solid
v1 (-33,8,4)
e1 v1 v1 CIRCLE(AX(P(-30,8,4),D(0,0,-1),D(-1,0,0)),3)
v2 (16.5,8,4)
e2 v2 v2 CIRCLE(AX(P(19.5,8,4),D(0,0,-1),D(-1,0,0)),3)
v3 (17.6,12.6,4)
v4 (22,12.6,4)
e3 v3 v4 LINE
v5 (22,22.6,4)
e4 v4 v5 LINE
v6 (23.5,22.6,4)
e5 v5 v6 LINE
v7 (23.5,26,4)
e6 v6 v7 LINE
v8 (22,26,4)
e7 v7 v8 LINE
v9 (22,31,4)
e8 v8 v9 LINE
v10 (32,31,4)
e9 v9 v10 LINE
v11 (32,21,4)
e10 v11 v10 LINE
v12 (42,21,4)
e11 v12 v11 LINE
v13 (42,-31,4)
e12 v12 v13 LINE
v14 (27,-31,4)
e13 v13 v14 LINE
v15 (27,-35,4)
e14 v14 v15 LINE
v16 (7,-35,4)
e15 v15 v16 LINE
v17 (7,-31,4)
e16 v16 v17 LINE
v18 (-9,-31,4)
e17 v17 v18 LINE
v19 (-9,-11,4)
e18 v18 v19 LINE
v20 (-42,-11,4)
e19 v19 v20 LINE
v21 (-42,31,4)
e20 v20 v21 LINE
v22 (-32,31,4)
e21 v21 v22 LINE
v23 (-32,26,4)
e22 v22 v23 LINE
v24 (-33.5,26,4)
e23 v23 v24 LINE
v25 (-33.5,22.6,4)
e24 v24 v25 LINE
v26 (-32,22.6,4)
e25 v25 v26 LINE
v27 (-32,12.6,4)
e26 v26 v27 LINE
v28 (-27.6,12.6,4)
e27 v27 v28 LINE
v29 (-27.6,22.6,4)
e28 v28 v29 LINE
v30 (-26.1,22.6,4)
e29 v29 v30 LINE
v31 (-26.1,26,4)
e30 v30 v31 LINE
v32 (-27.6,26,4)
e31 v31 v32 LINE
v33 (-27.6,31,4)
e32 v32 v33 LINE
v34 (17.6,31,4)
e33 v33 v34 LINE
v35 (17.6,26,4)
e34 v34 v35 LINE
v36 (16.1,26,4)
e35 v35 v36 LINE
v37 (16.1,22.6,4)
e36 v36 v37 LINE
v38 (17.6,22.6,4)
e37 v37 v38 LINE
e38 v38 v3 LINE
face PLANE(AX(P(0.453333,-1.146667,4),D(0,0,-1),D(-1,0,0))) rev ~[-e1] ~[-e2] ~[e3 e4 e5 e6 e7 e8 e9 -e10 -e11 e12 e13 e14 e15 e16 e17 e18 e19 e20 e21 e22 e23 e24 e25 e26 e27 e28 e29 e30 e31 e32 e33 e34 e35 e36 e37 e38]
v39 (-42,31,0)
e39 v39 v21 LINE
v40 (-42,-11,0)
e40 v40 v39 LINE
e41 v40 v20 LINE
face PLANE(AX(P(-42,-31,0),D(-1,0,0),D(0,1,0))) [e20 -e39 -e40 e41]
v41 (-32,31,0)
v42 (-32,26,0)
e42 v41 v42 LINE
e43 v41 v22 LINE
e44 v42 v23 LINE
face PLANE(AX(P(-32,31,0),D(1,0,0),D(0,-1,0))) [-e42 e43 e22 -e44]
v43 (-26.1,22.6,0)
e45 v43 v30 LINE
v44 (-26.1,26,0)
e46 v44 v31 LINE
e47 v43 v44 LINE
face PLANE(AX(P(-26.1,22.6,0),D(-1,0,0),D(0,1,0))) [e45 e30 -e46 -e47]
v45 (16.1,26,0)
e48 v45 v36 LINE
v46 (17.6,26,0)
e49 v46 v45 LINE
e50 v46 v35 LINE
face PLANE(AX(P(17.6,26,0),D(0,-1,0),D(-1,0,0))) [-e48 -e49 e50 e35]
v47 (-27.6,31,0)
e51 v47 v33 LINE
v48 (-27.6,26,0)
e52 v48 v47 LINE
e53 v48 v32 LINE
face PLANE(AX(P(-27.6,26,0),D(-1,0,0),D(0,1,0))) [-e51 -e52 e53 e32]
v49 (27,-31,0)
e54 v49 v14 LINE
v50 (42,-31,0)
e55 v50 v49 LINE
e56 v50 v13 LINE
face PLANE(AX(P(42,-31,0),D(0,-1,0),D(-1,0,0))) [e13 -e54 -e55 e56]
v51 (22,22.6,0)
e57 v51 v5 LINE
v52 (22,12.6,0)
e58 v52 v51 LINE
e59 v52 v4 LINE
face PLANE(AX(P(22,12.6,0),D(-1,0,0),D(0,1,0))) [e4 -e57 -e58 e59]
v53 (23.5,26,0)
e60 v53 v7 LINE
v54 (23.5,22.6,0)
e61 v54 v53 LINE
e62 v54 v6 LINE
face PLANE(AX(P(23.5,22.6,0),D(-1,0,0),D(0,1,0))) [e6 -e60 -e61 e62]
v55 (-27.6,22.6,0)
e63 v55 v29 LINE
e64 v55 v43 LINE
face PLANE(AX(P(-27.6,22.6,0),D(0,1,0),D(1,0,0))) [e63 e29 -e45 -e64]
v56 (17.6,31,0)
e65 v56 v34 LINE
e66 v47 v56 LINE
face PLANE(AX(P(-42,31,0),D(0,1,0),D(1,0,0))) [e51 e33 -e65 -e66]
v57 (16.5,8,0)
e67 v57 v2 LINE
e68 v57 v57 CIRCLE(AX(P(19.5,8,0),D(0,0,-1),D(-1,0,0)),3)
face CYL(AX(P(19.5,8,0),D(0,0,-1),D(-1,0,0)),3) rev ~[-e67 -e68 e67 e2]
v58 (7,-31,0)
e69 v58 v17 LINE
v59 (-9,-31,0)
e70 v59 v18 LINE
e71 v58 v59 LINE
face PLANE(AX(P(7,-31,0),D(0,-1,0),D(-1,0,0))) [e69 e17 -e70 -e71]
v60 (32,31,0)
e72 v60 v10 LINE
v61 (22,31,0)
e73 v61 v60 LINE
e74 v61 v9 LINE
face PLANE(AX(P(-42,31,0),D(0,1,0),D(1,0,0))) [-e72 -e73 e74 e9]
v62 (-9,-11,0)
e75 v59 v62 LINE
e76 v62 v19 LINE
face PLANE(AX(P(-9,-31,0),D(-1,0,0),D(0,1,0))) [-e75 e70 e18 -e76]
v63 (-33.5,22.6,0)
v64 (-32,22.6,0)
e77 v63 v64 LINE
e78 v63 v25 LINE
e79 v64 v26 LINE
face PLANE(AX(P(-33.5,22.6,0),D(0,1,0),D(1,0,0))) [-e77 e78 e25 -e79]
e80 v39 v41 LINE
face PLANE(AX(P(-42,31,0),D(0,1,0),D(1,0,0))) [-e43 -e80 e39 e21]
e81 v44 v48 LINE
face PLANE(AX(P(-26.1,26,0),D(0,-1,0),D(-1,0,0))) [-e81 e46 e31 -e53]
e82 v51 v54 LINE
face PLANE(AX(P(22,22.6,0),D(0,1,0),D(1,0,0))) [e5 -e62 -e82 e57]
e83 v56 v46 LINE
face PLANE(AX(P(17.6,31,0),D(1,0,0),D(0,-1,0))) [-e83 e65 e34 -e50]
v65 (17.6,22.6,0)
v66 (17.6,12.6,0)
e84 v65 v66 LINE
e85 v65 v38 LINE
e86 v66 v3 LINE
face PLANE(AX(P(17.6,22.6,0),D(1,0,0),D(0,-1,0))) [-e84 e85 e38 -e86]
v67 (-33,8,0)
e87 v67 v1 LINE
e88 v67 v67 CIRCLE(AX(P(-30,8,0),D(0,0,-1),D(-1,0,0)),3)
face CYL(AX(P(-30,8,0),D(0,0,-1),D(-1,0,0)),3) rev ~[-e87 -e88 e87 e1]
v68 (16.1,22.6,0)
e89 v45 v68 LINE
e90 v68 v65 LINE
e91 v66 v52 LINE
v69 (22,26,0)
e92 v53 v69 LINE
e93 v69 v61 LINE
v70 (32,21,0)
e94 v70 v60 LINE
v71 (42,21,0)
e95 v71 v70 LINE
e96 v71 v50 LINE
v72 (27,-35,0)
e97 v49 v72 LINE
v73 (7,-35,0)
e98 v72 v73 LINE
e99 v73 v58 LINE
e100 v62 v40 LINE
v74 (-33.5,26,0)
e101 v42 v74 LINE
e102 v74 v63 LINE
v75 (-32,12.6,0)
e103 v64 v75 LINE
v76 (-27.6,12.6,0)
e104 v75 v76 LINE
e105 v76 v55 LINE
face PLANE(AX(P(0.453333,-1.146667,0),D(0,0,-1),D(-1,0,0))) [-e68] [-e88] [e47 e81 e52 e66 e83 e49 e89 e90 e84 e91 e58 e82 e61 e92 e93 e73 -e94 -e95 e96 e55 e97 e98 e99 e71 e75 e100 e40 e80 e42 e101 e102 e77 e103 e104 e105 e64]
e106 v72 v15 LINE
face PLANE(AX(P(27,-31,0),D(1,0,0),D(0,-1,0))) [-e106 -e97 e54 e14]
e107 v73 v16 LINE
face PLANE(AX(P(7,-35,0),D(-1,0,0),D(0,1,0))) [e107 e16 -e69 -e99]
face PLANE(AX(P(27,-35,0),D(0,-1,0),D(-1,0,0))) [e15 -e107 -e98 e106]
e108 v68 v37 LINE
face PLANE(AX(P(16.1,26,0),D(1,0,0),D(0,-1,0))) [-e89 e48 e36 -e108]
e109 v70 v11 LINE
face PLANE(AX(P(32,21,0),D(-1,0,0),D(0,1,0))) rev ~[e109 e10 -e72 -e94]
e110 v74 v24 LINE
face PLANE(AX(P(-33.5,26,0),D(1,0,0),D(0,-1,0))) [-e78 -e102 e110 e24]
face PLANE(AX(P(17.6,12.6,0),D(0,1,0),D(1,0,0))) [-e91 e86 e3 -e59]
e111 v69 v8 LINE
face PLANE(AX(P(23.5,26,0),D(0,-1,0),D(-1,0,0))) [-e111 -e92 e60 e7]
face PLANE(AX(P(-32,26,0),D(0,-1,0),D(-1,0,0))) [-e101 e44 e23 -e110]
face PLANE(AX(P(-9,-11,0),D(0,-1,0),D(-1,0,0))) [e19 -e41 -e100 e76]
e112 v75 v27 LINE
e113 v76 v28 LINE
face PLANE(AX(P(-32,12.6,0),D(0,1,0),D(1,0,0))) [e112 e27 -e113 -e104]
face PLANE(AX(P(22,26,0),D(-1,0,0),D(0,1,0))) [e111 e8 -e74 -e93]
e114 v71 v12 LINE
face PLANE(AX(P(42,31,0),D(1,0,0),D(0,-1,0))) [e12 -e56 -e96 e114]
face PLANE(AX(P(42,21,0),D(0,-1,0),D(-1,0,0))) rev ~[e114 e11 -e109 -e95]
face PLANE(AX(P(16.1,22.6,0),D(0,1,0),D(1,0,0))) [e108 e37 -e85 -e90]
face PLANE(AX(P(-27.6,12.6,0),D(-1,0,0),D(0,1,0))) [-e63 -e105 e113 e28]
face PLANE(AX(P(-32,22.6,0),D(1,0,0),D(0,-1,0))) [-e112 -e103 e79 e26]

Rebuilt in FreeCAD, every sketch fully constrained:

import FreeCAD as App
import Part
import Sketcher
from FreeCAD import Vector
Q = App.Units.Quantity


def add_polygon(sketch, points):
    """Adds a closed chain of lines whose ends are joined by coincident constraints."""
    first, n = sketch.GeometryCount, len(points)
    for a, b in zip(points, points[1:] + points[:1]):
        sketch.addGeometry(Part.LineSegment(App.Vector(*a, 0), App.Vector(*b, 0)), False)
    for i in range(n):
        sketch.addConstraint(Sketcher.Constraint("Coincident", first + i, 2, first + (i + 1) % n, 1))

doc = App.newDocument("Part")
params = doc.addObject("Spreadsheet::Sheet", "Params")
for row, (alias, value) in enumerate([
    ("sketch1_width", "15 mm"),
    ("sketch1_width2", "84 mm"),
    ("sketch1_width3", "49 mm"),
    ("sketch1_height", "4 mm"),
    ("sketch1_height2", "62 mm"),
    ("pad1_length", "4 mm"),
    ("sketch2_width", "33 mm"),
    ("sketch2_width2", "10 mm"),
    ("sketch2_height", "20 mm"),
    ("pocket1_length", "5 mm"),
    ("sketch3_height", "10 mm"),
    ("sketch3_height2", "5 mm"),
    ("sketch3_width", "1.5 mm"),
    ("sketch3_width2", "4.4 mm"),
    ("sketch3_height3", "3.4 mm"),
    ("pocket2_length", "10 mm"),
    ("sketch4_diameter", "6 mm"),
    ("pocket3_length", "10 mm"),
], start=1):
    params.set(f"A{row}", alias)
    params.set(f"B{row}", "=" + value)
    params.setAlias(f"B{row}", alias)

body = doc.addObject("PartDesign::Body", "Body")

# Sketch on XY plane
sketch1 = body.newObject("Sketcher::SketchObject", "Sketch")
sketch1.AttachmentSupport = (doc.getObject("XY_Plane"), [""])
sketch1.MapMode = "FlatFace"
add_polygon(sketch1, [(27, -35), (27, -31), (42, -31), (42, 31), (-42, 31), (-42, -31), (7, -31), (7, -35)])  # lines 0-7
sketch1.addConstraint(Sketcher.Constraint("Vertical", 0))
sketch1.addConstraint(Sketcher.Constraint("Horizontal", 1))
sketch1.addConstraint(Sketcher.Constraint("Vertical", 2))
sketch1.addConstraint(Sketcher.Constraint("Horizontal", 3))
sketch1.addConstraint(Sketcher.Constraint("Vertical", 4))
sketch1.addConstraint(Sketcher.Constraint("Horizontal", 5))
sketch1.addConstraint(Sketcher.Constraint("Vertical", 6))
sketch1.addConstraint(Sketcher.Constraint("Horizontal", 7))
sketch1.addConstraint(Sketcher.Constraint("Symmetric", 1, 2, 3, 2, -1, 1))
sketch1.addConstraint(Sketcher.Constraint("Horizontal", 1, 2, 4, 2))
sketch1.addConstraint(Sketcher.Constraint("DistanceX", 1, 1, 1, 2, Q("15 mm")))
sketch1.addConstraint(Sketcher.Constraint("DistanceX", 3, 2, 3, 1, Q("84 mm")))
sketch1.addConstraint(Sketcher.Constraint("DistanceX", 5, 1, 5, 2, Q("49 mm")))
sketch1.addConstraint(Sketcher.Constraint("DistanceY", 0, 1, 0, 2, Q("4 mm")))
sketch1.addConstraint(Sketcher.Constraint("DistanceY", 2, 1, 2, 2, Q("62 mm")))
sketch1.setExpression("Constraints[18]", "Params.sketch1_width")
sketch1.setExpression("Constraints[19]", "Params.sketch1_width2")
sketch1.setExpression("Constraints[20]", "Params.sketch1_width3")
sketch1.setExpression("Constraints[21]", "Params.sketch1_height")
sketch1.setExpression("Constraints[22]", "Params.sketch1_height2")
pad1 = body.newObject("PartDesign::Pad", "Pad")
pad1.Profile = sketch1
pad1.setExpression("Length", "Params.pad1_length")

# Sketch on XY plane
sketch2 = body.newObject("Sketcher::SketchObject", "Sketch001")
sketch2.AttachmentSupport = (doc.getObject("XY_Plane"), [""])
sketch2.MapMode = "FlatFace"
add_polygon(sketch2, [(-9, -11), (-9, -31), (-42, -31), (-42, -11)])  # lines 0-3
add_polygon(sketch2, [(42, 31), (42, 21), (32, 21), (32, 31)])  # lines 4-7
sketch2.addConstraint(Sketcher.Constraint("Vertical", 0))
sketch2.addConstraint(Sketcher.Constraint("Horizontal", 1))
sketch2.addConstraint(Sketcher.Constraint("Vertical", 2))
sketch2.addConstraint(Sketcher.Constraint("Horizontal", 3))
sketch2.addConstraint(Sketcher.Constraint("Vertical", 4))
sketch2.addConstraint(Sketcher.Constraint("Horizontal", 5))
sketch2.addConstraint(Sketcher.Constraint("Vertical", 6))
sketch2.addConstraint(Sketcher.Constraint("Horizontal", 7))
sketch2.addConstraint(Sketcher.Constraint("Symmetric", 1, 2, 7, 2, -1, 1))
sketch2.addConstraint(Sketcher.Constraint("Equal", 7, 4))
sketch2.addConstraint(Sketcher.Constraint("DistanceX", 1, 2, 1, 1, Q("33 mm")))
sketch2.addConstraint(Sketcher.Constraint("DistanceX", 5, 2, 5, 1, Q("10 mm")))
sketch2.addConstraint(Sketcher.Constraint("DistanceY", 0, 2, 0, 1, Q("20 mm")))
sketch2.addConstraint(Sketcher.Constraint("DistanceX", 0, 2, -1, 1, Q("9 mm")))
sketch2.addConstraint(Sketcher.Constraint("DistanceY", 0, 2, -1, 1, Q("31 mm")))
sketch2.setExpression("Constraints[18]", "Params.sketch2_width")
sketch2.setExpression("Constraints[19]", "Params.sketch2_width2")
sketch2.setExpression("Constraints[20]", "Params.sketch2_height")
pocket1 = body.newObject("PartDesign::Pocket", "Pocket")
pocket1.Profile = sketch2
pocket1.setExpression("Length", "Params.pocket1_length")
pocket1.Reversed = True

# Sketch on XY plane
sketch3 = body.newObject("Sketcher::SketchObject", "Sketch002")
sketch3.AttachmentSupport = (doc.getObject("XY_Plane"), [""])
sketch3.MapMode = "FlatFace"
add_polygon(sketch3, [(-32, 12.6), (-32, 22.6), (-33.5, 22.6), (-33.5, 26), (-32, 26), (-32, 31), (-27.6, 31), (-27.6, 26), (-26.1, 26), (-26.1, 22.6), (-27.6, 22.6), (-27.6, 12.6)])  # lines 0-11
add_polygon(sketch3, [(17.6, 12.6), (17.6, 22.6), (16.1, 22.6), (16.1, 26), (17.6, 26), (17.6, 31), (22, 31), (22, 26), (23.5, 26), (23.5, 22.6), (22, 22.6), (22, 12.6)])  # lines 12-23
sketch3.addConstraint(Sketcher.Constraint("Vertical", 0))
sketch3.addConstraint(Sketcher.Constraint("Horizontal", 1))
sketch3.addConstraint(Sketcher.Constraint("Vertical", 2))
sketch3.addConstraint(Sketcher.Constraint("Horizontal", 3))
sketch3.addConstraint(Sketcher.Constraint("Vertical", 4))
sketch3.addConstraint(Sketcher.Constraint("Horizontal", 5))
sketch3.addConstraint(Sketcher.Constraint("Vertical", 6))
sketch3.addConstraint(Sketcher.Constraint("Horizontal", 7))
sketch3.addConstraint(Sketcher.Constraint("Vertical", 8))
sketch3.addConstraint(Sketcher.Constraint("Horizontal", 9))
sketch3.addConstraint(Sketcher.Constraint("Vertical", 10))
sketch3.addConstraint(Sketcher.Constraint("Horizontal", 11))
sketch3.addConstraint(Sketcher.Constraint("Vertical", 12))
sketch3.addConstraint(Sketcher.Constraint("Horizontal", 13))
sketch3.addConstraint(Sketcher.Constraint("Vertical", 14))
sketch3.addConstraint(Sketcher.Constraint("Horizontal", 15))
sketch3.addConstraint(Sketcher.Constraint("Vertical", 16))
sketch3.addConstraint(Sketcher.Constraint("Horizontal", 17))
sketch3.addConstraint(Sketcher.Constraint("Vertical", 18))
sketch3.addConstraint(Sketcher.Constraint("Horizontal", 19))
sketch3.addConstraint(Sketcher.Constraint("Vertical", 20))
sketch3.addConstraint(Sketcher.Constraint("Horizontal", 21))
sketch3.addConstraint(Sketcher.Constraint("Vertical", 22))
sketch3.addConstraint(Sketcher.Constraint("Horizontal", 23))
sketch3.addConstraint(Sketcher.Constraint("Horizontal", 3, 2, 6, 2))
sketch3.addConstraint(Sketcher.Constraint("Horizontal", 1, 2, 8, 2))
sketch3.addConstraint(Sketcher.Constraint("Horizontal", 9, 2, 12, 2))
sketch3.addConstraint(Sketcher.Constraint("Horizontal", 7, 2, 14, 2))
sketch3.addConstraint(Sketcher.Constraint("Horizontal", 5, 2, 16, 2))
sketch3.addConstraint(Sketcher.Constraint("Horizontal", 15, 2, 18, 2))
sketch3.addConstraint(Sketcher.Constraint("Horizontal", 13, 2, 20, 2))
sketch3.addConstraint(Sketcher.Constraint("Horizontal", 11, 2, 22, 2))
sketch3.addConstraint(Sketcher.Constraint("Vertical", 0, 2, 3, 2))
sketch3.addConstraint(Sketcher.Constraint("Vertical", 6, 2, 9, 2))
sketch3.addConstraint(Sketcher.Constraint("Vertical", 12, 2, 15, 2))
sketch3.addConstraint(Sketcher.Constraint("Vertical", 18, 2, 21, 2))
sketch3.addConstraint(Sketcher.Constraint("Equal", 3, 7))
sketch3.addConstraint(Sketcher.Constraint("Equal", 9, 13))
sketch3.addConstraint(Sketcher.Constraint("Equal", 11, 17))
sketch3.addConstraint(Sketcher.Constraint("Equal", 15, 19))
sketch3.addConstraint(Sketcher.Constraint("DistanceY", 0, 1, 0, 2, Q("10 mm")))
sketch3.addConstraint(Sketcher.Constraint("DistanceY", 4, 1, 4, 2, Q("5 mm")))
sketch3.addConstraint(Sketcher.Constraint("DistanceX", 1, 2, 1, 1, Q("1.5 mm")))
sketch3.addConstraint(Sketcher.Constraint("DistanceX", 5, 1, 5, 2, Q("4.4 mm")))
sketch3.addConstraint(Sketcher.Constraint("DistanceY", 2, 1, 2, 2, Q("3.4 mm")))
sketch3.addConstraint(Sketcher.Constraint("DistanceX", 0, 2, -1, 1, Q("32 mm")))
sketch3.addConstraint(Sketcher.Constraint("DistanceY", -1, 1, 2, 2, Q("26 mm")))
sketch3.addConstraint(Sketcher.Constraint("DistanceX", -1, 1, 17, 2, Q("22 mm")))
sketch3.setExpression("Constraints[64]", "Params.sketch3_height")
sketch3.setExpression("Constraints[65]", "Params.sketch3_height2")
sketch3.setExpression("Constraints[66]", "Params.sketch3_width")
sketch3.setExpression("Constraints[67]", "Params.sketch3_width2")
sketch3.setExpression("Constraints[68]", "Params.sketch3_height3")
pocket2 = body.newObject("PartDesign::Pocket", "Pocket001")
pocket2.Profile = sketch3
pocket2.setExpression("Length", "Params.pocket2_length")
pocket2.Reversed = True

# Sketch on XY plane
sketch4 = body.newObject("Sketcher::SketchObject", "Sketch003")
sketch4.AttachmentSupport = (doc.getObject("XY_Plane"), [""])
sketch4.MapMode = "FlatFace"
sketch4.addGeometry(Part.Circle(Vector(-30, 8, 0), Vector(0, 0, 1), 3), False)
sketch4.addGeometry(Part.Circle(Vector(19.5, 8, 0), Vector(0, 0, 1), 3), False)
sketch4.addConstraint(Sketcher.Constraint("Equal", 0, 1))
sketch4.addConstraint(Sketcher.Constraint("Horizontal", 0, 3, 1, 3))
sketch4.addConstraint(Sketcher.Constraint("Diameter", 0, Q("6 mm")))
sketch4.addConstraint(Sketcher.Constraint("DistanceX", 0, 3, -1, 1, Q("30 mm")))
sketch4.addConstraint(Sketcher.Constraint("DistanceY", -1, 1, 0, 3, Q("8 mm")))
sketch4.addConstraint(Sketcher.Constraint("DistanceX", -1, 1, 1, 3, Q("19.5 mm")))
sketch4.setExpression("Constraints[2]", "Params.sketch4_diameter")
pocket3 = body.newObject("PartDesign::Pocket", "Pocket002")
pocket3.Profile = sketch4
pocket3.setExpression("Length", "Params.pocket3_length")
pocket3.Reversed = True

doc.recompute()
